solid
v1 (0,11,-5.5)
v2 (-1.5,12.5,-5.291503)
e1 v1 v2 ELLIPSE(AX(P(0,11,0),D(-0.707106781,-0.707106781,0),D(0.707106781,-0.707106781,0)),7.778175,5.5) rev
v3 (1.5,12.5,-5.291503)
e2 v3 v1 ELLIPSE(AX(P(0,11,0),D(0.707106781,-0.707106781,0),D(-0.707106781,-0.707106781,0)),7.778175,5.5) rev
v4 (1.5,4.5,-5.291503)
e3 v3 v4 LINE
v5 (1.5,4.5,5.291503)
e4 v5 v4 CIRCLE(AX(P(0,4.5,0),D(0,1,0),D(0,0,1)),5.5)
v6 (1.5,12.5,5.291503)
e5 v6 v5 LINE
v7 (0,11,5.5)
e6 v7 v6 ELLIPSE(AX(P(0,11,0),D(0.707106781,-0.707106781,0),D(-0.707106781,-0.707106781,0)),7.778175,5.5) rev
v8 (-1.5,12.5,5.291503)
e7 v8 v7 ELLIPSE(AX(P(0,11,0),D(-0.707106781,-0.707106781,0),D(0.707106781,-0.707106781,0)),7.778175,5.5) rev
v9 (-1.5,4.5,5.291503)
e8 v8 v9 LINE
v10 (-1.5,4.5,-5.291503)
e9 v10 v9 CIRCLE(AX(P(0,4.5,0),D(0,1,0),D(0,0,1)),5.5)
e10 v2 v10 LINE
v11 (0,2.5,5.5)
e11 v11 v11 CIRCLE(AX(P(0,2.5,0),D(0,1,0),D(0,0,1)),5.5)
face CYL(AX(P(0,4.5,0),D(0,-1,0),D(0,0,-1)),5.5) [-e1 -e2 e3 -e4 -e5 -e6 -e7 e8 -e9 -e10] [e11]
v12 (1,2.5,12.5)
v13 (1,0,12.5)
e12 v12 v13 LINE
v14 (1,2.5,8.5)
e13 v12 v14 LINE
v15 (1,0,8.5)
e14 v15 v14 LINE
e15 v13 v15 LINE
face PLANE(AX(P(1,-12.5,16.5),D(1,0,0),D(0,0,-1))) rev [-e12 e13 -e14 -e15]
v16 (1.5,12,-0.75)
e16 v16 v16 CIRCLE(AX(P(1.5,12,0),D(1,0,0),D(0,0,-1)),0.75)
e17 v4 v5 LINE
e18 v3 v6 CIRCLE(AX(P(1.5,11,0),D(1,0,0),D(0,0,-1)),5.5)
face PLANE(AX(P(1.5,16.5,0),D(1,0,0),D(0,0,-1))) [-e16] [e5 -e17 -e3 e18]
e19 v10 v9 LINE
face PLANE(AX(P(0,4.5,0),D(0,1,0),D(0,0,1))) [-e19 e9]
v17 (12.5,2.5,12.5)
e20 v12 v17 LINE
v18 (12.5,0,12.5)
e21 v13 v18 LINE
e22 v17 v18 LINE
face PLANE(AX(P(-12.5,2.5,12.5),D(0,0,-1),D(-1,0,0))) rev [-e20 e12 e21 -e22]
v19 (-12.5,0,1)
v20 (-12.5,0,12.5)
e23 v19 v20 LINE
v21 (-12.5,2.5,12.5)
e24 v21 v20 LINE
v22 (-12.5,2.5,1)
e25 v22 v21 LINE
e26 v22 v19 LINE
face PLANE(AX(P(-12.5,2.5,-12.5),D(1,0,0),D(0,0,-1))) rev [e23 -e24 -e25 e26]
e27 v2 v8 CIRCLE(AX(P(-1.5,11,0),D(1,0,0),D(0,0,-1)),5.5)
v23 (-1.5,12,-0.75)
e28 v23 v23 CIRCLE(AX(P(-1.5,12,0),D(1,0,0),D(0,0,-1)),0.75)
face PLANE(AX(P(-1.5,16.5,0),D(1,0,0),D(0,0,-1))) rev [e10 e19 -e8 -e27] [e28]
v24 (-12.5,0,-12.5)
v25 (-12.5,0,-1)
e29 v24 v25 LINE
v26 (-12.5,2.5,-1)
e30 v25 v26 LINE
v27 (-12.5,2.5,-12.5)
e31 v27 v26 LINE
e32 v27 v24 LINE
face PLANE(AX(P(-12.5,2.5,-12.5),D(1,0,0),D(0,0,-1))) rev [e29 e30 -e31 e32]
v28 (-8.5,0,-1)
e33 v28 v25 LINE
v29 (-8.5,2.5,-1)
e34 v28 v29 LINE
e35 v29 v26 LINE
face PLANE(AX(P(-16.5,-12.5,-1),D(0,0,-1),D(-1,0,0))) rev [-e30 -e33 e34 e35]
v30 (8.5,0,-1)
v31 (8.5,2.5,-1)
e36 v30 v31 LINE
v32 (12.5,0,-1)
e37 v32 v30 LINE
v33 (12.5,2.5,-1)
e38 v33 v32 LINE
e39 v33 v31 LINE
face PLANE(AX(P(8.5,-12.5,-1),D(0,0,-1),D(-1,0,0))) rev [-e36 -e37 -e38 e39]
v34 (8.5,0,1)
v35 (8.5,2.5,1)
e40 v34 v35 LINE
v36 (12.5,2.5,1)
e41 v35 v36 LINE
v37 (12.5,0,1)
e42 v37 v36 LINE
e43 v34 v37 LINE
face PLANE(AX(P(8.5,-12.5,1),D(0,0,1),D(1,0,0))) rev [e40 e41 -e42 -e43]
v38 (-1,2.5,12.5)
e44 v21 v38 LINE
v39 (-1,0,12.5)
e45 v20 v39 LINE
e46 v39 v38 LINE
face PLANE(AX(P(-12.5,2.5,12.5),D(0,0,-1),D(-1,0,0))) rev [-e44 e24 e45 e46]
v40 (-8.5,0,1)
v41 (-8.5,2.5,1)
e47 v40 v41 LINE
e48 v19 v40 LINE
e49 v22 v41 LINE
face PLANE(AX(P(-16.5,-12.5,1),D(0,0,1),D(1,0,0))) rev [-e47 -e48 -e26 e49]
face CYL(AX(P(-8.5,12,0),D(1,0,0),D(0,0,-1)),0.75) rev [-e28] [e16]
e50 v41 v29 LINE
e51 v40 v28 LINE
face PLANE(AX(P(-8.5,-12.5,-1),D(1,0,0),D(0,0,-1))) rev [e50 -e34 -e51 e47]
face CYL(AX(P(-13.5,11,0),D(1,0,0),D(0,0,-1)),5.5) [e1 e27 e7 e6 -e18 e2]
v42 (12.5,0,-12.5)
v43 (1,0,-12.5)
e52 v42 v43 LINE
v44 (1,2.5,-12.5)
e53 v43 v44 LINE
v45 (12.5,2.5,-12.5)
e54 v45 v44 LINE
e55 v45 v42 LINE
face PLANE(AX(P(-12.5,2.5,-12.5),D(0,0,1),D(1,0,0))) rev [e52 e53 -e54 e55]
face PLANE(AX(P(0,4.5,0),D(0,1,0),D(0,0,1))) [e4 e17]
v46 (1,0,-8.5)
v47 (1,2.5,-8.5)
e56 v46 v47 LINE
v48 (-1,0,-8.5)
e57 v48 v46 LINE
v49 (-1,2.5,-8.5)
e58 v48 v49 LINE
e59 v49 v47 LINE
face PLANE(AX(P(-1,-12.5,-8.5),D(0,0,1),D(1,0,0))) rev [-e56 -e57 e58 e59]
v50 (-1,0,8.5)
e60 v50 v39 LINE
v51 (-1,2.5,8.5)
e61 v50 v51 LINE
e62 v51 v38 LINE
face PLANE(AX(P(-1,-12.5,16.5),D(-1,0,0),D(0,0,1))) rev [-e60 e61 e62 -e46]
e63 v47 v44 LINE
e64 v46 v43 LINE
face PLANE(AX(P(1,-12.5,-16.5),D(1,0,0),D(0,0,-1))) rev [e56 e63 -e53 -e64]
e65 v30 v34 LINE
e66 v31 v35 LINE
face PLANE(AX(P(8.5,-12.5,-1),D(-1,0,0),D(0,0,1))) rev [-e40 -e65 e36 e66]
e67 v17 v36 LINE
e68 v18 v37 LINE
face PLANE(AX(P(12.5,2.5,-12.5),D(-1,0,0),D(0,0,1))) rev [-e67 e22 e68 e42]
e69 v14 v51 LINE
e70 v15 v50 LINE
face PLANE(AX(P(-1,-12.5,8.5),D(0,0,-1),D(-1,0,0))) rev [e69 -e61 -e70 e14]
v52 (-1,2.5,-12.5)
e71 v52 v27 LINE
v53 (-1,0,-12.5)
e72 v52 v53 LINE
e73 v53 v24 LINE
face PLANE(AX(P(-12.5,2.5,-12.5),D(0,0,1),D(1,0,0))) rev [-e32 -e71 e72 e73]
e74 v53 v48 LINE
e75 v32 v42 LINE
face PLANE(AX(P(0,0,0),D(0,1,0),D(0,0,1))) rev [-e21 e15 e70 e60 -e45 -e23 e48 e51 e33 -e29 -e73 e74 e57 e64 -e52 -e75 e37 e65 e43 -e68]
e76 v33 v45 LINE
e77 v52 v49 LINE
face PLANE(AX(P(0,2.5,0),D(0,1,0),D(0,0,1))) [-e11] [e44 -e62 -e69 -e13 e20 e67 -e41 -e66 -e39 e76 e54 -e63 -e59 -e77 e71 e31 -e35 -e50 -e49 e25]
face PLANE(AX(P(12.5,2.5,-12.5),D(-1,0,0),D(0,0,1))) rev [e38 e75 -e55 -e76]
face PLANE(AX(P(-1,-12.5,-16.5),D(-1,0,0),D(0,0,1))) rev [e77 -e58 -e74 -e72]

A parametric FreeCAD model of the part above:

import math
import FreeCAD as App
import Part
import Sketcher

V = App.Vector
Q = App.Units.Quantity

doc = App.newDocument("Part")
body = doc.addObject("PartDesign::Body", "Body")

# Sketch on XZ plane
sketch1 = body.newObject("Sketcher::SketchObject", "Sketch")
sketch1.AttachmentSupport = (doc.getObject("XZ_Plane"), [""])
sketch1.MapMode = "FlatFace"
sketch1.addGeometry(Part.LineSegment(V(-12, -12, 0), V(-12, 12, 0)), False)
sketch1.addGeometry(Part.LineSegment(V(-12, 12, 0), V(12, 12, 0)), False)
sketch1.addGeometry(Part.LineSegment(V(12, 12, 0), V(12, -12, 0)), False)
sketch1.addGeometry(Part.LineSegment(V(12, -12, 0), V(-12, -12, 0)), False)
sketch1.addConstraint(Sketcher.Constraint("Coincident", 0, 2, 1, 1))
sketch1.addConstraint(Sketcher.Constraint("Coincident", 1, 2, 2, 1))
sketch1.addConstraint(Sketcher.Constraint("Coincident", 2, 2, 3, 1))
sketch1.addConstraint(Sketcher.Constraint("Coincident", 3, 2, 0, 1))
sketch1.addConstraint(Sketcher.Constraint("Vertical", 0))
sketch1.addConstraint(Sketcher.Constraint("Horizontal", 1))
sketch1.addConstraint(Sketcher.Constraint("Vertical", 2))
sketch1.addConstraint(Sketcher.Constraint("Horizontal", 3))
sketch1.addConstraint(Sketcher.Constraint("Symmetric", 0, 2, 2, 2, -1, 1))
sketch1.addConstraint(Sketcher.Constraint("Equal", 3, 0))
sketch1.addConstraint(Sketcher.Constraint("DistanceX", 1, 1, 1, 2, Q("25 mm")))
pad1 = body.newObject("PartDesign::Pad", "Pad")
pad1.Profile = sketch1
pad1.Length = 2.5
pad1.Reversed = True

# Sketch on XZ plane
sketch2 = body.newObject("Sketcher::SketchObject", "Sketch001")
sketch2.AttachmentSupport = (doc.getObject("XZ_Plane"), [""])
sketch2.MapMode = "FlatFace"
sketch2.AttachmentOffset = App.Placement(V(0, 0, -2.5), App.Rotation())
sketch2.addGeometry(Part.Circle(V(0, 0, 0), V(0, 0, 1), 6), False)
sketch2.addConstraint(Sketcher.Constraint("Coincident", 0, 3, -1, 1))
sketch2.addConstraint(Sketcher.Constraint("Diameter", 0, Q("11 mm")))
pad2 = body.newObject("PartDesign::Pad", "Pad001")
pad2.Profile = sketch2
pad2.Length = 2
pad2.Reversed = True

# Sketch on XZ plane
sketch3 = body.newObject("Sketcher::SketchObject", "Sketch002")
sketch3.AttachmentSupport = (doc.getObject("XZ_Plane"), [""])
sketch3.MapMode = "FlatFace"
sketch3.AttachmentOffset = App.Placement(V(0, 0, -4.5), App.Rotation())
sketch3.addGeometry(Part.ArcOfCircle(Part.Circle(V(0, 0, 0), V(0, 0, 1), 5.5), math.radians(-106), math.radians(-74)), False)
sketch3.addGeometry(Part.LineSegment(V(-1.5, -5.3, 0), V(-1.5, 5.3, 0)), False)
sketch3.addGeometry(Part.ArcOfCircle(Part.Circle(V(0, 0, 0), V(0, 0, 1), 5.5), math.radians(74), math.radians(106)), False)
sketch3.addGeometry(Part.LineSegment(V(1.5, 5.3, 0), V(1.5, -5.3, 0)), False)
sketch3.addConstraint(Sketcher.Constraint("Coincident", 0, 1, 1, 1))
sketch3.addConstraint(Sketcher.Constraint("Coincident", 1, 2, 2, 2))
sketch3.addConstraint(Sketcher.Constraint("Coincident", 2, 1, 3, 1))
sketch3.addConstraint(Sketcher.Constraint("Coincident", 3, 2, 0, 2))
sketch3.addConstraint(Sketcher.Constraint("Vertical", 1))
sketch3.addConstraint(Sketcher.Constraint("Vertical", 3))
sketch3.addConstraint(Sketcher.Constraint("Coincident", 0, 3, -1, 1))
sketch3.addConstraint(Sketcher.Constraint("Coincident", 2, 3, -1, 1))
sketch3.addConstraint(Sketcher.Constraint("Equal", 0, 2))
sketch3.addConstraint(Sketcher.Constraint("Horizontal", 1, 2, 2, 1))
sketch3.addConstraint(Sketcher.Constraint("Radius", 0, Q("5.5 mm")))
sketch3.addConstraint(Sketcher.Constraint("DistanceX", 1, 2, 2, 1, Q("3 mm")))
pad3 = body.newObject("PartDesign::Pad", "Pad002")
pad3.Profile = sketch3
pad3.Length = 12
pad3.Reversed = True

# Sketch on YZ plane
sketch4 = body.newObject("Sketcher::SketchObject", "Sketch003")
sketch4.AttachmentSupport = (doc.getObject("YZ_Plane"), [""])
sketch4.MapMode = "FlatFace"
sketch4.AttachmentOffset = App.Placement(V(0, 0, 1.5), App.Rotation())
sketch4.addGeometry(Part.LineSegment(V(17.1, 5.5, 0), V(11, 5.5, 0)), False)
sketch4.addGeometry(Part.ArcOfCircle(Part.Circle(V(11, 0, 0), V(0, 0, 1), 5.5), math.radians(74.17), math.radians(90)), False)
sketch4.addGeometry(Part.ArcOfCircle(Part.Circle(V(11, 0, 0), V(0, 0, 1), 5.5), math.radians(0), math.radians(74)), False)
sketch4.addGeometry(Part.ArcOfCircle(Part.Circle(V(11, 0, 0), V(0, 0, 1), 5.5), math.radians(-74), math.radians(0)), False)
sketch4.addGeometry(Part.ArcOfCircle(Part.Circle(V(11, 0, 0), V(0, 0, 1), 5.5), math.radians(-90), math.radians(-74.17)), False)
sketch4.addGeometry(Part.LineSegment(V(11, -5.5, 0), V(17.1, -5.5, 0)), False)
sketch4.addGeometry(Part.LineSegment(V(17.1, -5.5, 0), V(17.1, 5.5, 0)), False)
sketch4.addConstraint(Sketcher.Constraint("Tangent", 0, 2, 1, 2))
sketch4.addConstraint(Sketcher.Constraint("Tangent", 1, 1, 2, 2))
sketch4.addConstraint(Sketcher.Constraint("Tangent", 2, 1, 3, 2))
sketch4.addConstraint(Sketcher.Constraint("Tangent", 3, 1, 4, 2))
sketch4.addConstraint(Sketcher.Constraint("Tangent", 4, 1, 5, 1))
sketch4.addConstraint(Sketcher.Constraint("Coincident", 5, 2, 6, 1))
sketch4.addConstraint(Sketcher.Constraint("Coincident", 6, 2, 0, 1))
sketch4.addConstraint(Sketcher.Constraint("Horizontal", 0))
sketch4.addConstraint(Sketcher.Constraint("Horizontal", 5))
sketch4.addConstraint(Sketcher.Constraint("Vertical", 6))
sketch4.addConstraint(Sketcher.Constraint("Coincident", 3, 3, 1, 3))
sketch4.addConstraint(Sketcher.Constraint("Equal", 3, 4))
sketch4.addConstraint(Sketcher.Constraint("Symmetric", 1, 1, 3, 1, -1))
sketch4.addConstraint(Sketcher.Constraint("PointOnObject", 2, 1, -1))
sketch4.addConstraint(Sketcher.Constraint("Radius", 1, Q("5.5 mm")))
sketch4.addConstraint(Sketcher.Constraint("DistanceX", -1, 1, 1, 3, Q("11 mm")))
sketch4.addConstraint(Sketcher.Constraint("DistanceX", 1, 1, 2, 1, Q("4 mm")))
sketch4.addConstraint(Sketcher.Constraint("DistanceX", 0, 2, 0, 1, Q("6.101407 mm")))
pocket1 = body.newObject("PartDesign::Pocket", "Pocket")
pocket1.Profile = sketch4
pocket1.Length = 15

# Sketch on XZ plane
sketch5 = body.newObject("Sketcher::SketchObject", "Sketch004")
sketch5.AttachmentSupport = (doc.getObject("XZ_Plane"), [""])
sketch5.MapMode = "FlatFace"
sketch5.AttachmentOffset = App.Placement(V(0, 0, -2.5), App.Rotation())
sketch5.addGeometry(Part.LineSegment(V(-1, -16.5, 0), V(-1, -8.5, 0)), False)
sketch5.addGeometry(Part.LineSegment(V(-1, -8.5, 0), V(1, -8.5, 0)), False)
sketch5.addGeometry(Part.LineSegment(V(1, -8.5, 0), V(1, -16.5, 0)), False)
sketch5.addGeometry(Part.LineSegment(V(1, -16.5, 0), V(-1, -16.5, 0)), False)
sketch5.addGeometry(Part.LineSegment(V(-1, 8.5, 0), V(-1, 16.5, 0)), False)
sketch5.addGeometry(Part.LineSegment(V(-1, 16.5, 0), V(1, 16.5, 0)), False)
sketch5.addGeometry(Part.LineSegment(V(1, 16.5, 0), V(1, 8.5, 0)), False)
sketch5.addGeometry(Part.LineSegment(V(1, 8.5, 0), V(-1, 8.5, 0)), False)
sketch5.addGeometry(Part.LineSegment(V(8.5, -1, 0), V(8.5, 1, 0)), False)
sketch5.addGeometry(Part.LineSegment(V(8.5, 1, 0), V(16.5, 1, 0)), False)
sketch5.addGeometry(Part.LineSegment(V(16.5, 1, 0), V(16.5, -1, 0)), False)
sketch5.addGeometry(Part.LineSegment(V(16.5, -1, 0), V(8.5, -1, 0)), False)
sketch5.addGeometry(Part.LineSegment(V(-16.5, -1, 0), V(-16.5, 1, 0)), False)
sketch5.addGeometry(Part.LineSegment(V(-16.5, 1, 0), V(-8.5, 1, 0)), False)
sketch5.addGeometry(Part.LineSegment(V(-8.5, 1, 0), V(-8.5, -1, 0)), False)
sketch5.addGeometry(Part.LineSegment(V(-8.5, -1, 0), V(-16.5, -1, 0)), False)
sketch5.addConstraint(Sketcher.Constraint("Coincident", 0, 2, 1, 1))
sketch5.addConstraint(Sketcher.Constraint("Coincident", 1, 2, 2, 1))
sketch5.addConstraint(Sketcher.Constraint("Coincident", 2, 2, 3, 1))
sketch5.addConstraint(Sketcher.Constraint("Coincident", 3, 2, 0, 1))
sketch5.addConstraint(Sketcher.Constraint("Coincident", 4, 2, 5, 1))
sketch5.addConstraint(Sketcher.Constraint("Coincident", 5, 2, 6, 1))
sketch5.addConstraint(Sketcher.Constraint("Coincident", 6, 2, 7, 1))
sketch5.addConstraint(Sketcher.Constraint("Coincident", 7, 2, 4, 1))
sketch5.addConstraint(Sketcher.Constraint("Coincident", 8, 2, 9, 1))
sketch5.addConstraint(Sketcher.Constraint("Coincident", 9, 2, 10, 1))
sketch5.addConstraint(Sketcher.Constraint("Coincident", 10, 2, 11, 1))
sketch5.addConstraint(Sketcher.Constraint("Coincident", 11, 2, 8, 1))
sketch5.addConstraint(Sketcher.Constraint("Coincident", 12, 2, 13, 1))
sketch5.addConstraint(Sketcher.Constraint("Coincident", 13, 2, 14, 1))
sketch5.addConstraint(Sketcher.Constraint("Coincident", 14, 2, 15, 1))
sketch5.addConstraint(Sketcher.Constraint("Coincident", 15, 2, 12, 1))
sketch5.addConstraint(Sketcher.Constraint("Vertical", 0))
sketch5.addConstraint(Sketcher.Constraint("Horizontal", 1))
sketch5.addConstraint(Sketcher.Constraint("Vertical", 2))
sketch5.addConstraint(Sketcher.Constraint("Horizontal", 3))
sketch5.addConstraint(Sketcher.Constraint("Vertical", 4))
sketch5.addConstraint(Sketcher.Constraint("Horizontal", 5))
sketch5.addConstraint(Sketcher.Constraint("Vertical", 6))
sketch5.addConstraint(Sketcher.Constraint("Horizontal", 7))
sketch5.addConstraint(Sketcher.Constraint("Vertical", 8))
sketch5.addConstraint(Sketcher.Constraint("Horizontal", 9))
sketch5.addConstraint(Sketcher.Constraint("Vertical", 10))
sketch5.addConstraint(Sketcher.Constraint("Horizontal", 11))
sketch5.addConstraint(Sketcher.Constraint("Vertical", 12))
sketch5.addConstraint(Sketcher.Constraint("Horizontal", 13))
sketch5.addConstraint(Sketcher.Constraint("Vertical", 14))
sketch5.addConstraint(Sketcher.Constraint("Horizontal", 15))
sketch5.addConstraint(Sketcher.Constraint("Symmetric", 2, 2, 4, 2, -1, 1))
sketch5.addConstraint(Sketcher.Constraint("Symmetric", 0, 2, 6, 2, -1, 1))
sketch5.addConstraint(Sketcher.Constraint("Symmetric", 10, 2, 12, 2, -1, 1))
sketch5.addConstraint(Sketcher.Constraint("Symmetric", 8, 2, 14, 2, -1, 1))
sketch5.addConstraint(Sketcher.Constraint("Horizontal", 9, 2, 12, 2))
sketch5.addConstraint(Sketcher.Constraint("Vertical", 3, 2, 4, 2))
sketch5.addConstraint(Sketcher.Constraint("Equal", 15, 0))
sketch5.addConstraint(Sketcher.Constraint("Equal", 7, 8))
sketch5.addConstraint(Sketcher.Constraint("DistanceX", 1, 1, 1, 2, Q("2 mm")))
sketch5.addConstraint(Sketcher.Constraint("DistanceX", 9, 1, 9, 2, Q("8 mm")))
sketch5.addConstraint(Sketcher.Constraint("DistanceY", 0, 2, 4, 2, Q("25 mm")))
sketch5.addConstraint(Sketcher.Constraint("DistanceX", -1, 1, 8, 2, Q("8.5 mm")))
pocket2 = body.newObject("PartDesign::Pocket", "Pocket001")
pocket2.Profile = sketch5
pocket2.Length = 15
pocket2.Reversed = True

# Sketch on YZ plane
sketch6 = body.newObject("Sketcher::SketchObject", "Sketch005")
sketch6.AttachmentSupport = (doc.getObject("YZ_Plane"), [""])
sketch6.MapMode = "FlatFace"
sketch6.AttachmentOffset = App.Placement(V(0, 0, 1.5), App.Rotation())
sketch6.addGeometry(Part.Circle(V(12, 0, 0), V(0, 0, 1), 0.8), False)
sketch6.addConstraint(Sketcher.Constraint("PointOnObject", 0, 3, -1))
sketch6.addConstraint(Sketcher.Constraint("Diameter", 0, Q("1.5 mm")))
sketch6.addConstraint(Sketcher.Constraint("DistanceX", -1, 1, 0, 3, Q("12 mm")))
pocket3 = body.newObject("PartDesign::Pocket", "Pocket002")
pocket3.Profile = sketch6
pocket3.Length = 10

doc.recompute()
